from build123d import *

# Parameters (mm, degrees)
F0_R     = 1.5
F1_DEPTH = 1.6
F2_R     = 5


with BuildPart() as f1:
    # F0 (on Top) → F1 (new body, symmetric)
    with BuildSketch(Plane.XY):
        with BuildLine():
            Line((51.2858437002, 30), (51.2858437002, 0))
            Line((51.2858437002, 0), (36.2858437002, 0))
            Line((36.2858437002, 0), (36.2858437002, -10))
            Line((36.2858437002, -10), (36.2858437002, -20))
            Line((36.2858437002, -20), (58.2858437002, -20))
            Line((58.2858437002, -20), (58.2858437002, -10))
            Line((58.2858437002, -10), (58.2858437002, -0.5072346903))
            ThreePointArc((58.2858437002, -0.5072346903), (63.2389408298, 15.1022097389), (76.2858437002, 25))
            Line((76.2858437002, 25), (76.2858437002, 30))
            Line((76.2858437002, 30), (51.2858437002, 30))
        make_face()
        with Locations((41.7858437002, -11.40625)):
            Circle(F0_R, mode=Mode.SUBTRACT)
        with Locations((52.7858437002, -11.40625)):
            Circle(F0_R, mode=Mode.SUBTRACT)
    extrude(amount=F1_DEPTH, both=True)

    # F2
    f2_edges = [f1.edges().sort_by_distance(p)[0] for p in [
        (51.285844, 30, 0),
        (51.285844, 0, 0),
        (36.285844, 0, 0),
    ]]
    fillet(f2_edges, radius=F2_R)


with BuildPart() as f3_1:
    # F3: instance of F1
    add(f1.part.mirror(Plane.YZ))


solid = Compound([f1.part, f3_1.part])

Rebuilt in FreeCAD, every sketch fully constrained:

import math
import FreeCAD as App
import Part
import Sketcher
from FreeCAD import Vector
Q = App.Units.Quantity


def edges_at(feature, points):
    """Names of the edges that pass closest to the given points."""
    edges = feature.Shape.Edges
    near = lambda p: min(range(len(edges)), key=lambda i: edges[i].distToShape(Part.Vertex(*p))[0])
    return sorted({f"Edge{near(p) + 1}" for p in points})

doc = App.newDocument("Part")
body = doc.addObject("PartDesign::Body", "Body")

sketch1 = doc.addObject("Sketcher::SketchObject", "Sketch")
body.addObject(sketch1)
sketch1.AttachmentSupport = (doc.XY_Plane, [""])
sketch1.MapMode = "FlatFace"
sketch1.addGeometry(Part.LineSegment(Vector(51.3, 30, 0), Vector(51.3, 0, 0)), False)
sketch1.addGeometry(Part.LineSegment(Vector(51.3, 0, 0), Vector(36.3, 0, 0)), False)
sketch1.addGeometry(Part.LineSegment(Vector(36.3, 0, 0), Vector(36.3, -20, 0)), False)
sketch1.addGeometry(Part.LineSegment(Vector(36.3, -20, 0), Vector(58.3, -20, 0)), False)
sketch1.addGeometry(Part.LineSegment(Vector(58.3, -20, 0), Vector(58.3, -0.5, 0)), False)
sketch1.addGeometry(Part.ArcOfCircle(Part.Circle(Vector(85.4, -0.5, 0), Vector(0, 0, 1), 27.1), math.radians(110), math.radians(180)), False)
sketch1.addGeometry(Part.LineSegment(Vector(76.3, 25, 0), Vector(76.3, 30, 0)), False)
sketch1.addGeometry(Part.LineSegment(Vector(76.3, 30, 0), Vector(51.3, 30, 0)), False)
sketch1.addGeometry(Part.Circle(Vector(41.8, -11.4, 0), Vector(0, 0, 1), 1.5), False)
sketch1.addGeometry(Part.Circle(Vector(52.8, -11.4, 0), Vector(0, 0, 1), 1.5), False)
sketch1.addConstraint(Sketcher.Constraint("Coincident", 0, 2, 1, 1))
sketch1.addConstraint(Sketcher.Constraint("Coincident", 1, 2, 2, 1))
sketch1.addConstraint(Sketcher.Constraint("Coincident", 2, 2, 3, 1))
sketch1.addConstraint(Sketcher.Constraint("Coincident", 3, 2, 4, 1))
sketch1.addConstraint(Sketcher.Constraint("Tangent", 4, 2, 5, 2))
sketch1.addConstraint(Sketcher.Constraint("Coincident", 5, 1, 6, 1))
sketch1.addConstraint(Sketcher.Constraint("Coincident", 6, 2, 7, 1))
sketch1.addConstraint(Sketcher.Constraint("Coincident", 7, 2, 0, 1))
sketch1.addConstraint(Sketcher.Constraint("Vertical", 0))
sketch1.addConstraint(Sketcher.Constraint("Horizontal", 1))
sketch1.addConstraint(Sketcher.Constraint("Vertical", 2))
sketch1.addConstraint(Sketcher.Constraint("Horizontal", 3))
sketch1.addConstraint(Sketcher.Constraint("Vertical", 4))
sketch1.addConstraint(Sketcher.Constraint("Vertical", 6))
sketch1.addConstraint(Sketcher.Constraint("Horizontal", 7))
sketch1.addConstraint(Sketcher.Constraint("Equal", 8, 9))
sketch1.addConstraint(Sketcher.Constraint("PointOnObject", 0, 2, -1))
sketch1.addConstraint(Sketcher.Constraint("Horizontal", 8, 3, 9, 3))
sketch1.addConstraint(Sketcher.Constraint("Diameter", 8, Q("3 mm")))
sketch1.addConstraint(Sketcher.Constraint("DistanceX", 1, 2, 1, 1, Q("15 mm")))
sketch1.addConstraint(Sketcher.Constraint("DistanceX", 3, 1, 3, 2, Q("22 mm")))
sketch1.addConstraint(Sketcher.Constraint("DistanceX", 7, 2, 7, 1, Q("25 mm")))
sketch1.addConstraint(Sketcher.Constraint("DistanceY", 0, 2, 0, 1, Q("30 mm")))
sketch1.addConstraint(Sketcher.Constraint("DistanceY", 2, 2, 2, 1, Q("20 mm")))
sketch1.addConstraint(Sketcher.Constraint("DistanceY", 6, 1, 6, 2, Q("5 mm")))
sketch1.addConstraint(Sketcher.Constraint("DistanceX", 8, 3, 9, 3, Q("11 mm")))
sketch1.addConstraint(Sketcher.Constraint("DistanceX", 0, 2, 9, 3, Q("1.5 mm")))
sketch1.addConstraint(Sketcher.Constraint("Radius", 5, Q("27.072751 mm")))
sketch1.addConstraint(Sketcher.Constraint("DistanceY", 8, 3, -1, 1, Q("11.40625 mm")))
sketch1.addConstraint(Sketcher.Constraint("DistanceX", -1, 1, 5, 3, Q("85.358594 mm")))
pad1 = doc.addObject("PartDesign::Pad", "Pad")
body.addObject(pad1)
pad1.Profile = sketch1
pad1.Length = 3.2
pad1.Midplane = True
doc.recompute()

fillet = doc.addObject("PartDesign::Fillet", "Fillet")
body.addObject(fillet)
fillet.Base = (pad1, edges_at(pad1, [(51.286, 30, 0), (51.286, 0, 0), (36.286, 0, 0)]))
fillet.Radius = 5
body2 = doc.addObject("PartDesign::Body", "Body001")
doc.recompute()

mirroring = doc.addObject("Part::Mirroring", "Mirroring")
mirroring.Source = body
mirroring.Base = Vector(0, 0, 0)
mirroring.Normal = Vector(1, 0, 0)
body2.BaseFeature = mirroring
doc.recompute()
mirroring.Visibility = False

doc.recompute()
